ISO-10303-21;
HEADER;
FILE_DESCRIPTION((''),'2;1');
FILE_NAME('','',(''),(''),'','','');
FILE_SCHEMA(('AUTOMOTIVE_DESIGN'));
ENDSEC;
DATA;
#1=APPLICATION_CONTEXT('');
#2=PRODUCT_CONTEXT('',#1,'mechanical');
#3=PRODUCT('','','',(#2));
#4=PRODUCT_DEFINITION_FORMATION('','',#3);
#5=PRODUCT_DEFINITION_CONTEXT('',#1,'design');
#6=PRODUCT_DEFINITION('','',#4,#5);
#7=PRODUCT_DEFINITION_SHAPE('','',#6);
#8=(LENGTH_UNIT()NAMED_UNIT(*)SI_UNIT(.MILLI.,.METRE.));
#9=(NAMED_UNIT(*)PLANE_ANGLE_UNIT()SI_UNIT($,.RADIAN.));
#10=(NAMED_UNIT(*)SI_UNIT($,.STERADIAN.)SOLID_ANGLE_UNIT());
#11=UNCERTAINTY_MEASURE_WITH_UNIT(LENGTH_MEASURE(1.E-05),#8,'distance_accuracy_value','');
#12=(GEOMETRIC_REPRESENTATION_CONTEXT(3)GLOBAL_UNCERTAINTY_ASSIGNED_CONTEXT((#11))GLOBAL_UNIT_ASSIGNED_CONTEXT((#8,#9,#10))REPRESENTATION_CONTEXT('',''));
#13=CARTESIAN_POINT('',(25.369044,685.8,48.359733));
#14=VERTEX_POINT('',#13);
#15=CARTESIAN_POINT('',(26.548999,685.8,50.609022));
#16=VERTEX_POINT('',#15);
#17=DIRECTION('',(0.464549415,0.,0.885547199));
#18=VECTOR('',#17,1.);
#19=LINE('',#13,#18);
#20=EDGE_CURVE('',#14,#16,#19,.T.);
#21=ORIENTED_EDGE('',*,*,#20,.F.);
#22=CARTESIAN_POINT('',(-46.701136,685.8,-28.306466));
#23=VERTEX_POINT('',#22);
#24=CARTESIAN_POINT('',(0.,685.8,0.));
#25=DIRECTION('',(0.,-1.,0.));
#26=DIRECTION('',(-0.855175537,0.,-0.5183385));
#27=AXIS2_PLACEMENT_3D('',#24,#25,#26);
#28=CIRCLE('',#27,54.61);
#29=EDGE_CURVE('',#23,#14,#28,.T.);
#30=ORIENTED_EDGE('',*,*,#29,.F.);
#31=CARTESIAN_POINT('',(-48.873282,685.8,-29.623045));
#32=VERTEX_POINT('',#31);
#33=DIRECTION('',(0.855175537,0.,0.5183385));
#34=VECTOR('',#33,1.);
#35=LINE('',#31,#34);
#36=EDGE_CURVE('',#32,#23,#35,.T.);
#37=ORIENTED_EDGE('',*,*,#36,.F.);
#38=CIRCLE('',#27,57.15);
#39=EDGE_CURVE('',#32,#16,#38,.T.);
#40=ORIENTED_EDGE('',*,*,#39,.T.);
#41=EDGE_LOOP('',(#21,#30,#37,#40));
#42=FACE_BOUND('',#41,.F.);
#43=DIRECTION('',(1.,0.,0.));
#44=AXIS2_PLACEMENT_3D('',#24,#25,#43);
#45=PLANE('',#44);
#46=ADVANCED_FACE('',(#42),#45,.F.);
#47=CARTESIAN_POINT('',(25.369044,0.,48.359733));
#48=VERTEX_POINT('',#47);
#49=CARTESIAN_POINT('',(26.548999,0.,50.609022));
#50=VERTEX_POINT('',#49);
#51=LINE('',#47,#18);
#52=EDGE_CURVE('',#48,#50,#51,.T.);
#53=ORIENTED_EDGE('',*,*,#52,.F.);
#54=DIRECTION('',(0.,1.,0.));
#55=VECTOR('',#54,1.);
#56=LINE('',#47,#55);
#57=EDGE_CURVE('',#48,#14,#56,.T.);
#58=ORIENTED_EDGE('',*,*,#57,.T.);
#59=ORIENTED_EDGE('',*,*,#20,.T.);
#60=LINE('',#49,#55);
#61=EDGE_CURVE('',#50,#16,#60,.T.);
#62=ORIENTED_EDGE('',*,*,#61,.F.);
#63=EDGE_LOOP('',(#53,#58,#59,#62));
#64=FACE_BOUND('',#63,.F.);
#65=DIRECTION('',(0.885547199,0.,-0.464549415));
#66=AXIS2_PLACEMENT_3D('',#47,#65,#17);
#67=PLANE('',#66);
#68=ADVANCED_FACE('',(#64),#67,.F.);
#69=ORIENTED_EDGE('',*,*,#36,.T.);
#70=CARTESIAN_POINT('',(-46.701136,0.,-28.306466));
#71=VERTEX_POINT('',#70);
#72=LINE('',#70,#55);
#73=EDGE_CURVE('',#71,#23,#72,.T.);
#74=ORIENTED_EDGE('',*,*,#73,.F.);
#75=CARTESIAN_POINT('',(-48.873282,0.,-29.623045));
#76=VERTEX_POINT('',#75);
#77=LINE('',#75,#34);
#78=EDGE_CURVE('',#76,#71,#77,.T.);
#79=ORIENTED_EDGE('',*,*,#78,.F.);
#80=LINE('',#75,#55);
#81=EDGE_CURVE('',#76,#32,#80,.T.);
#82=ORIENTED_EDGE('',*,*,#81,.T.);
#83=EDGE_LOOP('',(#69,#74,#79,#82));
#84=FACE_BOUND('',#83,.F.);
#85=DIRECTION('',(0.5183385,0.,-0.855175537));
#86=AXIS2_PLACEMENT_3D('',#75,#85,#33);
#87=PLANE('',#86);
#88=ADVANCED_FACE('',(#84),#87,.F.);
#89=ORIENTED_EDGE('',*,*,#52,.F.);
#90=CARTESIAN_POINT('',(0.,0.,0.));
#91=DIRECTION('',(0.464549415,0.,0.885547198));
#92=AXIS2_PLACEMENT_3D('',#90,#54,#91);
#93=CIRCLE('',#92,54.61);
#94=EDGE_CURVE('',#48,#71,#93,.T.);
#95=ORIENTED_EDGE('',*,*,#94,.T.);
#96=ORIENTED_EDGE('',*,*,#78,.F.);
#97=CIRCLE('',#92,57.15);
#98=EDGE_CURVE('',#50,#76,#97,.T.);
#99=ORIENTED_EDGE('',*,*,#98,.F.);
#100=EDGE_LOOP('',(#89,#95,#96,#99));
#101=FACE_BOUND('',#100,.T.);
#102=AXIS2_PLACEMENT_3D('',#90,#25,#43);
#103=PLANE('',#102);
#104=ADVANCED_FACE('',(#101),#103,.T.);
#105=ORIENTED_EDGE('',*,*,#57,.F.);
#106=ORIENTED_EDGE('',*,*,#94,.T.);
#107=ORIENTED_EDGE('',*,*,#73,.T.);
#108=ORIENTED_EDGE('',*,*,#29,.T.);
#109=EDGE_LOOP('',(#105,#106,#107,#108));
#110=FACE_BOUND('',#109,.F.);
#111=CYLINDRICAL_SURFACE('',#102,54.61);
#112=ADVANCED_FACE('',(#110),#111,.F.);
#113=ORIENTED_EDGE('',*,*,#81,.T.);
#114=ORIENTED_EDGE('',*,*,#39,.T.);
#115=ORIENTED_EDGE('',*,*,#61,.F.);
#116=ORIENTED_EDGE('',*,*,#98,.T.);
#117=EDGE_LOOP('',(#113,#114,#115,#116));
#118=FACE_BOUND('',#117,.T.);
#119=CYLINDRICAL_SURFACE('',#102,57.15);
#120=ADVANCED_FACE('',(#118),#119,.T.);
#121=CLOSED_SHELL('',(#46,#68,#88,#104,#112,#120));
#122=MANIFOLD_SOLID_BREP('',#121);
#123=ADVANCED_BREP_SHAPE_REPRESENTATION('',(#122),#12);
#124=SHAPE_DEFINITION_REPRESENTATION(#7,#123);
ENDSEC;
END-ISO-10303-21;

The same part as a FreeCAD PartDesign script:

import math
import FreeCAD as App
import Part
import Sketcher
Q = App.Units.Quantity

doc = App.newDocument("Part")
body = doc.addObject("PartDesign::Body", "Body")

sketch1 = body.newObject("Sketcher::SketchObject", "Sketch")
sketch1.AttachmentSupport = (doc.getObject("XZ_Plane"), [""])
sketch1.MapMode = "FlatFace"
sketch1.addGeometry([
    Part.Circle(App.Vector(0, 0, 0), App.Vector(0, 0, 1), 57),
    Part.Circle(App.Vector(0, 0, 0), App.Vector(0, 0, 1), 55),
], False)
sketch1.addConstraint([
    Sketcher.Constraint("Coincident", 0, 3, -1, 1),
    Sketcher.Constraint("Coincident", 1, 3, -1, 1),
    Sketcher.Constraint("Diameter", 0, Q("4.5 in")),
    Sketcher.Constraint("Diameter", 1, Q("4.3 in")),
])
pad1 = body.newObject("PartDesign::Pad", "Pad")
pad1.Profile = sketch1
pad1.Length = Q("27 in")
pad1.Reversed = True

sketch2 = body.newObject("Sketcher::SketchObject", "Sketch001")
sketch2.AttachmentSupport = (doc.getObject("XZ_Plane"), [""])
sketch2.MapMode = "FlatFace"
sketch2.addGeometry([
    Part.ArcOfCircle(Part.Circle(App.Vector(0, 0, 0), App.Vector(0, 0, 1), 54.6), math.radians(62), math.radians(211)),
    Part.LineSegment(App.Vector(25.4, 48.4, 0), App.Vector(26.5, 50.6, 0)),
    Part.ArcOfCircle(Part.Circle(App.Vector(0, 0, 0), App.Vector(0, 0, 1), 57.1), math.radians(62), math.radians(211)),
    Part.LineSegment(App.Vector(-48.9, -29.6, 0), App.Vector(-46.7, -28.3, 0)),
], False)
sketch2.addConstraint([
    Sketcher.Constraint("Coincident", 0, 1, 1, 1),
    Sketcher.Constraint("Coincident", 1, 2, 2, 1),
    Sketcher.Constraint("Coincident", 2, 2, 3, 1),
    Sketcher.Constraint("Coincident", 3, 2, 0, 2),
    Sketcher.Constraint("Coincident", 0, 3, -1, 1),
    Sketcher.Constraint("Coincident", 2, 3, -1, 1),
    Sketcher.Constraint("Radius", 0, Q("2.15 in")),
    Sketcher.Constraint("Radius", 2, Q("2.25 in")),
    Sketcher.Constraint("DistanceX", -1, 1, 1, 2, 26.548999),
    Sketcher.Constraint("DistanceY", 3, 2, 0, 1, 76.666198),
    Sketcher.Constraint("DistanceX", 2, 2, -1, 1, 48.873282),
    Sketcher.Constraint("DistanceY", 0, 1, 1, 2, 2.24929),
])
pocket1 = body.newObject("PartDesign::Pocket", "Pocket")
pocket1.Profile = sketch2
pocket1.Length = Q("27 in")

doc.recompute()
